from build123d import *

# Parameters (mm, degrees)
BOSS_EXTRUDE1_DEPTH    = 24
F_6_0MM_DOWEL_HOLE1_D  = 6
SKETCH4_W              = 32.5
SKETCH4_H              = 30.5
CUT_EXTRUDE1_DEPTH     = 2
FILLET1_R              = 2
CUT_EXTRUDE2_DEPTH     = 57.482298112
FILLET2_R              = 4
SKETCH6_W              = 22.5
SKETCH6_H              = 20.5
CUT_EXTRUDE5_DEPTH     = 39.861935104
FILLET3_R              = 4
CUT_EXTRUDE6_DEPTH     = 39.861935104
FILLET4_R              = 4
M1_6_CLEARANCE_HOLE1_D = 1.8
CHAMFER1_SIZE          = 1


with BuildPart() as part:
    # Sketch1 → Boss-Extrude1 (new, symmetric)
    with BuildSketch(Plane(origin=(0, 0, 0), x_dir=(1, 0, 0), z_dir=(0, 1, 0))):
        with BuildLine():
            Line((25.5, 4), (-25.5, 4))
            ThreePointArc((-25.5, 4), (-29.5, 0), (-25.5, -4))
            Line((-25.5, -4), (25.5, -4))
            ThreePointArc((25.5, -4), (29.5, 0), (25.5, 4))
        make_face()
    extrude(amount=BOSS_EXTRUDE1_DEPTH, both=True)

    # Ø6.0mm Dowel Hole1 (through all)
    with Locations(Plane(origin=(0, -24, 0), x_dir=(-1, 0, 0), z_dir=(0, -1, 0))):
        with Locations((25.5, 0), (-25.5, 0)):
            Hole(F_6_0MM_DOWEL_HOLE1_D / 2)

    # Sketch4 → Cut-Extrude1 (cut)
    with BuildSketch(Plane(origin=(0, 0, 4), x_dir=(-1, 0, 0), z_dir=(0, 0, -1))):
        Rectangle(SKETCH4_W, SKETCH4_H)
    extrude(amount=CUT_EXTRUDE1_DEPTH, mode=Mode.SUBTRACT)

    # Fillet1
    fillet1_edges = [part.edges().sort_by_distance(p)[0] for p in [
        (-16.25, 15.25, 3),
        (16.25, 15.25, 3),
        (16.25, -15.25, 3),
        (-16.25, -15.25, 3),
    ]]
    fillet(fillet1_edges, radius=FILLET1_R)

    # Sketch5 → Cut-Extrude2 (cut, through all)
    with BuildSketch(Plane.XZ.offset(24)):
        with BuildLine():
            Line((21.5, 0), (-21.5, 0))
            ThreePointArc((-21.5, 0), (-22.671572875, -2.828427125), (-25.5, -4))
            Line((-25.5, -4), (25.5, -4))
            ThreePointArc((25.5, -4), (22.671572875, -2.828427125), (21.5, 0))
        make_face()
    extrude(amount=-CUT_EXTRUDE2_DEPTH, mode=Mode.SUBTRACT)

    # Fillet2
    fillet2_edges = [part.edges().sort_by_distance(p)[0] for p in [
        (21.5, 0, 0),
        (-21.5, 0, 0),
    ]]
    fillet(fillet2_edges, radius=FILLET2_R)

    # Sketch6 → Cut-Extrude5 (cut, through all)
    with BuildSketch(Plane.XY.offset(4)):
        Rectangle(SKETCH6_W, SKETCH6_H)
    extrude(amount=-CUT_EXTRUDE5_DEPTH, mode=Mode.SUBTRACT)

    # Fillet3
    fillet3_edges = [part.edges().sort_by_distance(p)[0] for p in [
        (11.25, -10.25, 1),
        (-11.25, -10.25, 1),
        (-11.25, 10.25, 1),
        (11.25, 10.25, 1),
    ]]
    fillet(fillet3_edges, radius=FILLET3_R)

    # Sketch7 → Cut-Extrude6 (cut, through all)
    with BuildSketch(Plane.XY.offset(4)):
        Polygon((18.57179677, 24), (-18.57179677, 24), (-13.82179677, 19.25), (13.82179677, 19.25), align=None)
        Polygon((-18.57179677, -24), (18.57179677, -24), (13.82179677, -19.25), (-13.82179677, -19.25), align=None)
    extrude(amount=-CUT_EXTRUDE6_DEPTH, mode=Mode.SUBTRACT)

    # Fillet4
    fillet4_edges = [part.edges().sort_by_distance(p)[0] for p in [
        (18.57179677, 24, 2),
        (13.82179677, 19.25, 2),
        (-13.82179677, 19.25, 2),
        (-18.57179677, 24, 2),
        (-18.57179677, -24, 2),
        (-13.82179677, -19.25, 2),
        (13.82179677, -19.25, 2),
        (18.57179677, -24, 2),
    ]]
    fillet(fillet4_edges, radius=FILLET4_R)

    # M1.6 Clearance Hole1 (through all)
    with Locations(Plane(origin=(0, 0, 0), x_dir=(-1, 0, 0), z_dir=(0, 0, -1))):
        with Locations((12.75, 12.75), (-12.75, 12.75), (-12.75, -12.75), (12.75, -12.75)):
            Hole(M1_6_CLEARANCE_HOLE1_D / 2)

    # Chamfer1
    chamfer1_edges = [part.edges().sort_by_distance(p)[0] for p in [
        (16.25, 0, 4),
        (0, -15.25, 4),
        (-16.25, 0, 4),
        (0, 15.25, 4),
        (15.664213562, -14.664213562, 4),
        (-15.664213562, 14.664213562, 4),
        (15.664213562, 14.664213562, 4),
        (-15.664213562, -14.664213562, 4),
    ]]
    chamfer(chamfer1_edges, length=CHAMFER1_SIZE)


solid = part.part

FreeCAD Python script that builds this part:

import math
import FreeCAD as App
import Part
import Sketcher
Q = App.Units.Quantity


def edges_at(feature, points):
    """Names of the edges that pass closest to the given points."""
    edges = feature.Shape.Edges
    near = lambda p: min(range(len(edges)), key=lambda i: edges[i].distToShape(Part.Vertex(*p))[0])
    return sorted({f"Edge{near(p) + 1}" for p in points})

doc = App.newDocument("Part")
params = doc.addObject("Spreadsheet::Sheet", "Params")
for row, (alias, value) in enumerate([
    ("sketch1_radius", "4 mm"),
    ("sketch1_width", "51 mm"),
    ("pad1_length", "48 mm"),
    ("sketch2_diameter", "6 mm"),
    ("hole_diameter", "6 mm"),
    ("sketch3_width", "32.5 mm"),
    ("sketch3_height", "30.5 mm"),
    ("pocket1_length", "2 mm"),
    ("fillet_radius", "2 mm"),
    ("sketch4_radius", "4 mm"),
    ("sketch4_width", "43 mm"),
    ("fillet2_radius", "4 mm"),
    ("sketch5_width", "22.5 mm"),
    ("sketch5_height", "20.5 mm"),
    ("fillet3_radius", "4 mm"),
    ("fillet4_radius", "4 mm"),
    ("sketch7_diameter", "1.8 mm"),
    ("hole2_diameter", "1.8 mm"),
    ("chamfer_size", "1 mm"),
], start=1):
    params.set(f"A{row}", alias)
    params.set(f"B{row}", "=" + value)
    params.setAlias(f"B{row}", alias)

body = doc.addObject("PartDesign::Body", "Body")

sketch1 = body.newObject("Sketcher::SketchObject", "Sketch")
sketch1.AttachmentSupport = (doc.getObject("XZ_Plane"), [""])
sketch1.MapMode = "FlatFace"
sketch1.addGeometry([
    Part.LineSegment(App.Vector(25.5, -4, 0), App.Vector(-25.5, -4, 0)),
    Part.ArcOfCircle(Part.Circle(App.Vector(-25.5, 0, 0), App.Vector(0, 0, 1), 4), math.radians(90), math.radians(270)),
    Part.LineSegment(App.Vector(-25.5, 4, 0), App.Vector(25.5, 4, 0)),
    Part.ArcOfCircle(Part.Circle(App.Vector(25.5, 0, 0), App.Vector(0, 0, 1), 4), math.radians(-90), math.radians(90)),
], False)
sketch1.addConstraint([
    Sketcher.Constraint("Tangent", 0, 2, 1, 2),
    Sketcher.Constraint("Tangent", 1, 1, 2, 1),
    Sketcher.Constraint("Tangent", 2, 2, 3, 2),
    Sketcher.Constraint("Tangent", 3, 1, 0, 1),
    Sketcher.Constraint("Horizontal", 0),
    Sketcher.Constraint("Horizontal", 2),
    Sketcher.Constraint("Symmetric", 1, 3, 3, 3, -1, 1),
    Sketcher.Constraint("Radius", 1, Q("4 mm")),
    Sketcher.Constraint("DistanceX", 0, 2, 0, 1, Q("51 mm")),
])
sketch1.setExpression("Constraints[7]", "Params.sketch1_radius")
sketch1.setExpression("Constraints[8]", "Params.sketch1_width")
pad1 = body.newObject("PartDesign::Pad", "Pad")
pad1.Profile = sketch1
pad1.setExpression("Length", "Params.pad1_length")
pad1.Midplane = True

sketch2 = body.newObject("Sketcher::SketchObject", "Sketch001")
sketch2.AttachmentSupport = (doc.getObject("XZ_Plane"), [""])
sketch2.MapMode = "FlatFace"
sketch2.AttachmentOffset = App.Placement(App.Vector(0, 0, 24), App.Rotation())
sketch2.addGeometry([
    Part.Circle(App.Vector(-25.5, 0, 0), App.Vector(0, 0, 1), 3),
    Part.Circle(App.Vector(25.5, 0, 0), App.Vector(0, 0, 1), 3),
], False)
sketch2.addConstraint([
    Sketcher.Constraint("Equal", 0, 1),
    Sketcher.Constraint("Symmetric", 0, 3, 1, 3, -1, 1),
    Sketcher.Constraint("PointOnObject", 0, 3, -1),
    Sketcher.Constraint("Diameter", 0, Q("6 mm")),
    Sketcher.Constraint("DistanceX", 0, 3, 1, 3, Q("51 mm")),
])
sketch2.setExpression("Constraints[3]", "Params.sketch2_diameter")
doc.recompute()
hole = body.newObject("PartDesign::Hole", "Hole")
hole.Profile = sketch2
hole.ThreadType = "None"
hole.setExpression("Diameter", "Params.hole_diameter")
hole.DepthType = "ThroughAll"

sketch3 = body.newObject("Sketcher::SketchObject", "Sketch002")
sketch3.AttachmentSupport = (doc.getObject("XY_Plane"), [""])
sketch3.MapMode = "FlatFace"
sketch3.AttachmentOffset = App.Placement(App.Vector(0, 0, 4), App.Rotation())
sketch3.addGeometry([
    Part.LineSegment(App.Vector(16, 15, 0), App.Vector(16, -15, 0)),
    Part.LineSegment(App.Vector(16, -15, 0), App.Vector(-16, -15, 0)),
    Part.LineSegment(App.Vector(-16, -15, 0), App.Vector(-16, 15, 0)),
    Part.LineSegment(App.Vector(-16, 15, 0), App.Vector(16, 15, 0)),
], False)
sketch3.addConstraint([
    Sketcher.Constraint("Coincident", 0, 2, 1, 1),
    Sketcher.Constraint("Coincident", 1, 2, 2, 1),
    Sketcher.Constraint("Coincident", 2, 2, 3, 1),
    Sketcher.Constraint("Coincident", 3, 2, 0, 1),
    Sketcher.Constraint("Vertical", 0),
    Sketcher.Constraint("Horizontal", 1),
    Sketcher.Constraint("Vertical", 2),
    Sketcher.Constraint("Horizontal", 3),
    Sketcher.Constraint("Symmetric", 0, 2, 2, 2, -1, 1),
    Sketcher.Constraint("DistanceX", 1, 2, 1, 1, Q("32.5 mm")),
    Sketcher.Constraint("DistanceY", 0, 2, 0, 1, Q("30.5 mm")),
])
sketch3.setExpression("Constraints[9]", "Params.sketch3_width")
sketch3.setExpression("Constraints[10]", "Params.sketch3_height")
pocket1 = body.newObject("PartDesign::Pocket", "Pocket")
pocket1.Profile = sketch3
pocket1.setExpression("Length", "Params.pocket1_length")
doc.recompute()

fillet = body.newObject("PartDesign::Fillet", "Fillet")
fillet.Base = (pocket1, edges_at(pocket1, [
    (-16.25, 15.25, 3),
    (16.25, 15.25, 3),
    (16.25, -15.25, 3),
    (-16.25, -15.25, 3),
]))
fillet.setExpression("Radius", "Params.fillet_radius")

sketch4 = body.newObject("Sketcher::SketchObject", "Sketch003")
sketch4.AttachmentSupport = (doc.getObject("XZ_Plane"), [""])
sketch4.MapMode = "FlatFace"
sketch4.AttachmentOffset = App.Placement(App.Vector(0, 0, 24), App.Rotation())
sketch4.addGeometry([
    Part.LineSegment(App.Vector(21.5, 0, 0), App.Vector(-21.5, 0, 0)),
    Part.ArcOfCircle(Part.Circle(App.Vector(-25.5, 0, 0), App.Vector(0, 0, 1), 4), math.radians(-90), math.radians(0)),
    Part.LineSegment(App.Vector(-25.5, -4, 0), App.Vector(25.5, -4, 0)),
    Part.ArcOfCircle(Part.Circle(App.Vector(25.5, 0, 0), App.Vector(0, 0, 1), 4), math.radians(180), math.radians(270)),
], False)
sketch4.addConstraint([
    Sketcher.Constraint("Coincident", 0, 2, 1, 2),
    Sketcher.Constraint("Tangent", 1, 1, 2, 1),
    Sketcher.Constraint("Tangent", 2, 2, 3, 2),
    Sketcher.Constraint("Coincident", 3, 1, 0, 1),
    Sketcher.Constraint("Horizontal", 0),
    Sketcher.Constraint("Horizontal", 2),
    Sketcher.Constraint("Equal", 1, 3),
    Sketcher.Constraint("Symmetric", 1, 3, 3, 3, -1, 1),
    Sketcher.Constraint("PointOnObject", 0, 2, -1),
    Sketcher.Constraint("Radius", 1, Q("4 mm")),
    Sketcher.Constraint("DistanceX", 0, 2, 0, 1, Q("43 mm")),
])
sketch4.setExpression("Constraints[9]", "Params.sketch4_radius")
sketch4.setExpression("Constraints[10]", "Params.sketch4_width")
pocket2 = body.newObject("PartDesign::Pocket", "Pocket001")
pocket2.Profile = sketch4
pocket2.Type = "ThroughAll"
doc.recompute()

fillet2 = body.newObject("PartDesign::Fillet", "Fillet001")
fillet2.Base = (pocket2, edges_at(pocket2, [(21.5, 0, 0), (-21.5, 0, 0)]))
fillet2.setExpression("Radius", "Params.fillet2_radius")

sketch5 = body.newObject("Sketcher::SketchObject", "Sketch004")
sketch5.AttachmentSupport = (doc.getObject("XY_Plane"), [""])
sketch5.MapMode = "FlatFace"
sketch5.AttachmentOffset = App.Placement(App.Vector(0, 0, 4), App.Rotation())
sketch5.addGeometry([
    Part.LineSegment(App.Vector(-11, 10, 0), App.Vector(-11, -10, 0)),
    Part.LineSegment(App.Vector(-11, -10, 0), App.Vector(11, -10, 0)),
    Part.LineSegment(App.Vector(11, -10, 0), App.Vector(11, 10, 0)),
    Part.LineSegment(App.Vector(11, 10, 0), App.Vector(-11, 10, 0)),
], False)
sketch5.addConstraint([
    Sketcher.Constraint("Coincident", 0, 2, 1, 1),
    Sketcher.Constraint("Coincident", 1, 2, 2, 1),
    Sketcher.Constraint("Coincident", 2, 2, 3, 1),
    Sketcher.Constraint("Coincident", 3, 2, 0, 1),
    Sketcher.Constraint("Vertical", 0),
    Sketcher.Constraint("Horizontal", 1),
    Sketcher.Constraint("Vertical", 2),
    Sketcher.Constraint("Horizontal", 3),
    Sketcher.Constraint("Symmetric", 0, 2, 2, 2, -1, 1),
    Sketcher.Constraint("DistanceX", 1, 1, 1, 2, Q("22.5 mm")),
    Sketcher.Constraint("DistanceY", 0, 2, 0, 1, Q("20.5 mm")),
])
sketch5.setExpression("Constraints[9]", "Params.sketch5_width")
sketch5.setExpression("Constraints[10]", "Params.sketch5_height")
pocket3 = body.newObject("PartDesign::Pocket", "Pocket002")
pocket3.Profile = sketch5
pocket3.Type = "ThroughAll"
doc.recompute()

fillet3 = body.newObject("PartDesign::Fillet", "Fillet002")
fillet3.Base = (pocket3, edges_at(pocket3, [
    (11.25, -10.25, 1),
    (-11.25, -10.25, 1),
    (-11.25, 10.25, 1),
    (11.25, 10.25, 1),
]))
fillet3.setExpression("Radius", "Params.fillet3_radius")

sketch6 = body.newObject("Sketcher::SketchObject", "Sketch005")
sketch6.AttachmentSupport = (doc.getObject("XY_Plane"), [""])
sketch6.MapMode = "FlatFace"
sketch6.AttachmentOffset = App.Placement(App.Vector(0, 0, 4), App.Rotation())
sketch6.addGeometry([
    Part.LineSegment(App.Vector(19, 24, 0), App.Vector(-19, 24, 0)),
    Part.LineSegment(App.Vector(-19, 24, 0), App.Vector(-14, 19, 0)),
    Part.LineSegment(App.Vector(-14, 19, 0), App.Vector(14, 19, 0)),
    Part.LineSegment(App.Vector(14, 19, 0), App.Vector(19, 24, 0)),
    Part.LineSegment(App.Vector(-19, -24, 0), App.Vector(19, -24, 0)),
    Part.LineSegment(App.Vector(19, -24, 0), App.Vector(14, -19, 0)),
    Part.LineSegment(App.Vector(14, -19, 0), App.Vector(-14, -19, 0)),
    Part.LineSegment(App.Vector(-14, -19, 0), App.Vector(-19, -24, 0)),
], False)
sketch6.addConstraint([
    Sketcher.Constraint("Coincident", 0, 2, 1, 1),
    Sketcher.Constraint("Coincident", 1, 2, 2, 1),
    Sketcher.Constraint("Coincident", 2, 2, 3, 1),
    Sketcher.Constraint("Coincident", 3, 2, 0, 1),
    Sketcher.Constraint("Coincident", 4, 2, 5, 1),
    Sketcher.Constraint("Coincident", 5, 2, 6, 1),
    Sketcher.Constraint("Coincident", 6, 2, 7, 1),
    Sketcher.Constraint("Coincident", 7, 2, 4, 1),
    Sketcher.Constraint("Horizontal", 0),
    Sketcher.Constraint("Horizontal", 2),
    Sketcher.Constraint("Horizontal", 4),
    Sketcher.Constraint("Horizontal", 6),
    Sketcher.Constraint("Symmetric", 0, 2, 4, 2, -1, 1),
    Sketcher.Constraint("Symmetric", 1, 2, 5, 2, -1, 1),
    Sketcher.Constraint("Perpendicular", 1, 3),
    Sketcher.Constraint("Perpendicular", 5, 7),
    Sketcher.Constraint("Vertical", 3, 2, 4, 2),
    Sketcher.Constraint("Vertical", 2, 2, 5, 2),
    Sketcher.Constraint("Vertical", 1, 2, 6, 2),
    Sketcher.Constraint("DistanceY", -1, 1, 0, 2, Q("24 mm")),
    Sketcher.Constraint("DistanceY", 5, 2, 2, 2, Q("38.5 mm")),
    Sketcher.Constraint("DistanceX", 0, 2, 0, 1, Q("37.143594 mm")),
])
pocket4 = body.newObject("PartDesign::Pocket", "Pocket003")
pocket4.Profile = sketch6
pocket4.Type = "ThroughAll"
doc.recompute()

fillet4 = body.newObject("PartDesign::Fillet", "Fillet003")
fillet4.Base = (pocket4, edges_at(pocket4, [
    (18.572, 24, 2),
    (13.822, 19.25, 2),
    (-13.822, 19.25, 2),
    (-18.572, 24, 2),
    (-18.572, -24, 2),
    (-13.822, -19.25, 2),
    (13.822, -19.25, 2),
    (18.572, -24, 2),
]))
fillet4.setExpression("Radius", "Params.fillet4_radius")

sketch7 = body.newObject("Sketcher::SketchObject", "Sketch006")
sketch7.AttachmentSupport = (doc.getObject("XY_Plane"), [""])
sketch7.MapMode = "FlatFace"
sketch7.addGeometry([
    Part.Circle(App.Vector(-12.8, 12.8, 0), App.Vector(0, 0, 1), 0.9),
    Part.Circle(App.Vector(12.8, 12.8, 0), App.Vector(0, 0, 1), 0.9),
    Part.Circle(App.Vector(12.8, -12.8, 0), App.Vector(0, 0, 1), 0.9),
    Part.Circle(App.Vector(-12.8, -12.8, 0), App.Vector(0, 0, 1), 0.9),
], False)
sketch7.addConstraint([
    Sketcher.Constraint("Equal", 0, 1),
    Sketcher.Constraint("Equal", 1, 2),
    Sketcher.Constraint("Equal", 2, 3),
    Sketcher.Constraint("Symmetric", 0, 3, 2, 3, -1, 1),
    Sketcher.Constraint("Symmetric", 1, 3, 3, 3, -1, 1),
    Sketcher.Constraint("Symmetric", 0, 3, 1, 3, -2),
    Sketcher.Constraint("Diameter", 0, Q("1.8 mm")),
    Sketcher.Constraint("DistanceX", 0, 3, 1, 3, Q("25.5 mm")),
    Sketcher.Constraint("DistanceY", 2, 3, 1, 3, Q("25.5 mm")),
])
sketch7.setExpression("Constraints[6]", "Params.sketch7_diameter")
doc.recompute()
hole2 = body.newObject("PartDesign::Hole", "Hole001")
hole2.Profile = sketch7
hole2.ThreadType = "None"
hole2.setExpression("Diameter", "Params.hole2_diameter")
hole2.DepthType = "ThroughAll"
hole2.Reversed = True
doc.recompute()

chamfer = body.newObject("PartDesign::Chamfer", "Chamfer")
chamfer.Base = (hole2, edges_at(hole2, [
    (16.25, 0, 4),
    (0, -15.25, 4),
    (-16.25, 0, 4),
    (0, 15.25, 4),
    (15.664, -14.664, 4),
    (-15.664, 14.664, 4),
    (15.664, 14.664, 4),
    (-15.664, -14.664, 4),
]))
chamfer.setExpression("Size", "Params.chamfer_size")

doc.recompute()
